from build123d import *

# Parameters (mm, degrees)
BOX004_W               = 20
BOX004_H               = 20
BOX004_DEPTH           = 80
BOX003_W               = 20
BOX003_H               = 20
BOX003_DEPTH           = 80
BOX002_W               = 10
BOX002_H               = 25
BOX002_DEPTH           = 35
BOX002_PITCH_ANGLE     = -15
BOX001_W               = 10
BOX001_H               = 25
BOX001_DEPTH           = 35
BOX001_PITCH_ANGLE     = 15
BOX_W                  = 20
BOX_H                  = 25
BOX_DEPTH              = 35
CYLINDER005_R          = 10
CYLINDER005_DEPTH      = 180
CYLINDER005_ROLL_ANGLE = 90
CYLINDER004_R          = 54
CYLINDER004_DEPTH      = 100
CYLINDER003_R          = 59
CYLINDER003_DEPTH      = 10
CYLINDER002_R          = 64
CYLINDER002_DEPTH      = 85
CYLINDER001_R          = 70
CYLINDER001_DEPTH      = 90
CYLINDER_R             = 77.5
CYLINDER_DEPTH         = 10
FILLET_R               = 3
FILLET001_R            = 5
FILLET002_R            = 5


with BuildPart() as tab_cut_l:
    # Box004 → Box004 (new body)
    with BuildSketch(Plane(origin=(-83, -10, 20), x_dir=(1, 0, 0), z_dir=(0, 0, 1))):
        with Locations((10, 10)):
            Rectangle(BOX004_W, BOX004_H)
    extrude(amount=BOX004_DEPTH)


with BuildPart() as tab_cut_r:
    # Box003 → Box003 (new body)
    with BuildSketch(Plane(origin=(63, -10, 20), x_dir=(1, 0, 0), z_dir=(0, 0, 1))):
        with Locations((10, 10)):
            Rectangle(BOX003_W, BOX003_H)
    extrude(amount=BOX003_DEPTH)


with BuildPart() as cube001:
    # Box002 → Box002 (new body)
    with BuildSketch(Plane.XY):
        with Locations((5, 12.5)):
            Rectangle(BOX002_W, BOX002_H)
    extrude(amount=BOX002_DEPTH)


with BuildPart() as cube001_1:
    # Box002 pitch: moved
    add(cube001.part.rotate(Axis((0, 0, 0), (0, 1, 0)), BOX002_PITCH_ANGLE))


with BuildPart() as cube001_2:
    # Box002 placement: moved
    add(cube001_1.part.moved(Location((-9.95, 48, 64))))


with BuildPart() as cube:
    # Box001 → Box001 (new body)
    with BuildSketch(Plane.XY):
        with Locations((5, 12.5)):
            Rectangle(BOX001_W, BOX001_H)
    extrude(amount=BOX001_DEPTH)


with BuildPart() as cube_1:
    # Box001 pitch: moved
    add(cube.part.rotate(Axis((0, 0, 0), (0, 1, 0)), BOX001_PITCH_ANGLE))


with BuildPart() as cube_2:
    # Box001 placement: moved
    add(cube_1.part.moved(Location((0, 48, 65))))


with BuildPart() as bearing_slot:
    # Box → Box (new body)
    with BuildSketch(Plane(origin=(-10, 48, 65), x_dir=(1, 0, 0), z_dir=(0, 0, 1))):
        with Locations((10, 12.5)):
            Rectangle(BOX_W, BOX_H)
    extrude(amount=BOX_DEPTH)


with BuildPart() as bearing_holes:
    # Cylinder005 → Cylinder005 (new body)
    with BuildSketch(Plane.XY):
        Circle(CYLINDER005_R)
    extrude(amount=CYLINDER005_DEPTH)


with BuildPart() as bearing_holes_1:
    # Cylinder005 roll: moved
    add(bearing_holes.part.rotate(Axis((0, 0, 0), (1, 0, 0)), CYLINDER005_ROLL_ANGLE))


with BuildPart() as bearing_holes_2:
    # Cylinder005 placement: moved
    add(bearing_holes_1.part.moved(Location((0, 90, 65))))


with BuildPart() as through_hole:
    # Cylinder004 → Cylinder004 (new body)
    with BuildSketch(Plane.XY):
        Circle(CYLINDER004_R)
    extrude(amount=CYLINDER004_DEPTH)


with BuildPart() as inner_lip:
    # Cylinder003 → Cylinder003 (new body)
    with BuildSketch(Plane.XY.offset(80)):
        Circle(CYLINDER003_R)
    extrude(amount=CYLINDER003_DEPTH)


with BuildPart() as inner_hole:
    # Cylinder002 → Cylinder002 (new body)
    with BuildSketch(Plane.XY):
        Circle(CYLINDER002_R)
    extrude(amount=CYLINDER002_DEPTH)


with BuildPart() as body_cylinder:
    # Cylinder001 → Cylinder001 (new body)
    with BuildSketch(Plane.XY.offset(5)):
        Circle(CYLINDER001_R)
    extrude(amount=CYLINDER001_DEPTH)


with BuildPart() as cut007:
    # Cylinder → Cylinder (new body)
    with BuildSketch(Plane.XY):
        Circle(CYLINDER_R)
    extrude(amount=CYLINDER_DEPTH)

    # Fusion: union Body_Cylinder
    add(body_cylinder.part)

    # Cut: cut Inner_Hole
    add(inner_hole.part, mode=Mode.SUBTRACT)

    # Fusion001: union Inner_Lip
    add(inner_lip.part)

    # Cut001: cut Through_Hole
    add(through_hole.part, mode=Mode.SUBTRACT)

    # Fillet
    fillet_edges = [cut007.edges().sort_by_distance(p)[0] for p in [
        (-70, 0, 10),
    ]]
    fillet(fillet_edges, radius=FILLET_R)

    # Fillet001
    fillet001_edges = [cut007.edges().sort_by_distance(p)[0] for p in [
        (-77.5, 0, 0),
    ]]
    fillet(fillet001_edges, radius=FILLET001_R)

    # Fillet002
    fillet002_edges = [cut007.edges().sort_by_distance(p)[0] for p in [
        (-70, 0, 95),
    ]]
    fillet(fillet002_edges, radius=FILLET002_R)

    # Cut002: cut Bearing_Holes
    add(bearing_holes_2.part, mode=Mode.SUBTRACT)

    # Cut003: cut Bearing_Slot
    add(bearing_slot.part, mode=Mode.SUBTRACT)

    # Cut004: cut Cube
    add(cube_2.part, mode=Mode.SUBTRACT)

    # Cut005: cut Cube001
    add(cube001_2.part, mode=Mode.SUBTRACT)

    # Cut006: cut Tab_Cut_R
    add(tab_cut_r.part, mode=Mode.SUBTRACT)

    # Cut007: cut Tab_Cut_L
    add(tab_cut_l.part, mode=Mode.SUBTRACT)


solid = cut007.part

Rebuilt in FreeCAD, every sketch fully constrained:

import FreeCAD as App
import Part
import Sketcher

V = App.Vector
Q = App.Units.Quantity


def edges_at(feature, points):
    """Names of the edges that pass closest to the given points."""
    edges = feature.Shape.Edges
    near = lambda p: min(range(len(edges)), key=lambda i: edges[i].distToShape(Part.Vertex(*p))[0])
    return sorted({f"Edge{near(p) + 1}" for p in points})


def add_polygon(sketch, points):
    """Adds a closed chain of lines whose ends are joined by coincident constraints."""
    first, n = sketch.GeometryCount, len(points)
    for a, b in zip(points, points[1:] + points[:1]):
        sketch.addGeometry(Part.LineSegment(App.Vector(*a, 0), App.Vector(*b, 0)), False)
    for i in range(n):
        sketch.addConstraint(Sketcher.Constraint("Coincident", first + i, 2, first + (i + 1) % n, 1))

doc = App.newDocument("Part")
body = doc.addObject("PartDesign::Body", "Body")

# Sketch on XY plane
sketch1 = doc.addObject("Sketcher::SketchObject", "Sketch")
body.addObject(sketch1)
sketch1.AttachmentSupport = (doc.XY_Plane, [""])
sketch1.MapMode = "FlatFace"
sketch1.AttachmentOffset = App.Placement(V(0, 0, 20), App.Rotation())
add_polygon(sketch1, [(-83, 10), (-83, -10), (-63, -10), (-63, 10)])  # lines 0-3
sketch1.addConstraint([
    Sketcher.Constraint("Vertical", 0),
    Sketcher.Constraint("Horizontal", 1),
    Sketcher.Constraint("Vertical", 2),
    Sketcher.Constraint("Horizontal", 3),
    Sketcher.Constraint("Equal", 3, 0),
    Sketcher.Constraint("DistanceX", 1, 1, 1, 2, Q("20 mm")),
    Sketcher.Constraint("DistanceX", 0, 2, -1, 1, Q("83 mm")),
    Sketcher.Constraint("DistanceY", 0, 2, -1, 1, Q("10 mm")),
])
pad1 = doc.addObject("PartDesign::Pad", "Pad")
body.addObject(pad1)
pad1.Profile = sketch1
pad1.Length = 80
body2 = doc.addObject("PartDesign::Body", "Body001")

# Sketch on XY plane
sketch2 = doc.addObject("Sketcher::SketchObject", "Sketch001")
body2.addObject(sketch2)
sketch2.AttachmentSupport = (doc.getObject("XY_Plane001"), [""])
sketch2.MapMode = "FlatFace"
sketch2.AttachmentOffset = App.Placement(V(0, 0, 20), App.Rotation())
add_polygon(sketch2, [(63, 10), (63, -10), (83, -10), (83, 10)])  # lines 0-3
sketch2.addConstraint([
    Sketcher.Constraint("Vertical", 0),
    Sketcher.Constraint("Horizontal", 1),
    Sketcher.Constraint("Vertical", 2),
    Sketcher.Constraint("Horizontal", 3),
    Sketcher.Constraint("Equal", 3, 0),
    Sketcher.Constraint("DistanceX", 1, 1, 1, 2, Q("20 mm")),
    Sketcher.Constraint("DistanceX", -1, 1, 0, 2, Q("63 mm")),
    Sketcher.Constraint("DistanceY", 0, 2, -1, 1, Q("10 mm")),
])
pad2 = doc.addObject("PartDesign::Pad", "Pad001")
body2.addObject(pad2)
pad2.Profile = sketch2
pad2.Length = 80
body3 = doc.addObject("PartDesign::Body", "Body002")

# Sketch on XY plane
sketch3 = doc.addObject("Sketcher::SketchObject", "Sketch002")
body3.addObject(sketch3)
sketch3.AttachmentSupport = (doc.getObject("XY_Plane002"), [""])
sketch3.MapMode = "FlatFace"
add_polygon(sketch3, [(0, 25), (0, 0), (10, 0), (10, 25)])  # lines 0-3
sketch3.addConstraint([
    Sketcher.Constraint("Vertical", 0),
    Sketcher.Constraint("Horizontal", 1),
    Sketcher.Constraint("Vertical", 2),
    Sketcher.Constraint("Horizontal", 3),
    Sketcher.Constraint("Coincident", 0, 2, -1, 1),
    Sketcher.Constraint("DistanceX", 1, 1, 1, 2, Q("10 mm")),
    Sketcher.Constraint("DistanceY", 0, 2, 0, 1, Q("25 mm")),
])
pad3 = doc.addObject("PartDesign::Pad", "Pad002")
body3.addObject(pad3)
pad3.Profile = sketch3
pad3.Length = 35
body4 = doc.addObject("PartDesign::Body", "Body003")
doc.recompute()

body3.Placement = App.Placement(V(0, 0, 0), App.Rotation(V(0, 1, 0), 345))
boolean = doc.addObject("PartDesign::Boolean", "Boolean")
body4.addObject(boolean)
boolean.Type = "Fuse"
boolean.addObjects([body3])
body5 = doc.addObject("PartDesign::Body", "Body004")
doc.recompute()

body4.Placement = App.Placement(V(-9.95, 48, 64), App.Rotation(V(0, 0, 1), 0))
boolean2 = doc.addObject("PartDesign::Boolean", "Boolean001")
body5.addObject(boolean2)
boolean2.Type = "Fuse"
boolean2.addObjects([body4])
body6 = doc.addObject("PartDesign::Body", "Body005")

# Sketch on XY plane
sketch4 = doc.addObject("Sketcher::SketchObject", "Sketch003")
body6.addObject(sketch4)
sketch4.AttachmentSupport = (doc.getObject("XY_Plane005"), [""])
sketch4.MapMode = "FlatFace"
add_polygon(sketch4, [(0, 25), (0, 0), (10, 0), (10, 25)])  # lines 0-3
sketch4.addConstraint([
    Sketcher.Constraint("Vertical", 0),
    Sketcher.Constraint("Horizontal", 1),
    Sketcher.Constraint("Vertical", 2),
    Sketcher.Constraint("Horizontal", 3),
    Sketcher.Constraint("Coincident", 0, 2, -1, 1),
    Sketcher.Constraint("DistanceX", 1, 1, 1, 2, Q("10 mm")),
    Sketcher.Constraint("DistanceY", 0, 2, 0, 1, Q("25 mm")),
])
pad4 = doc.addObject("PartDesign::Pad", "Pad003")
body6.addObject(pad4)
pad4.Profile = sketch4
pad4.Length = 35
body7 = doc.addObject("PartDesign::Body", "Body006")
doc.recompute()

body6.Placement = App.Placement(V(0, 0, 0), App.Rotation(V(0, 1, 0), 15))
boolean3 = doc.addObject("PartDesign::Boolean", "Boolean002")
body7.addObject(boolean3)
boolean3.Type = "Fuse"
boolean3.addObjects([body6])
body8 = doc.addObject("PartDesign::Body", "Body007")
doc.recompute()

body7.Placement = App.Placement(V(0, 48, 65), App.Rotation(V(0, 0, 1), 0))
boolean4 = doc.addObject("PartDesign::Boolean", "Boolean003")
body8.addObject(boolean4)
boolean4.Type = "Fuse"
boolean4.addObjects([body7])
body9 = doc.addObject("PartDesign::Body", "Body008")

# Sketch on XY plane
sketch5 = doc.addObject("Sketcher::SketchObject", "Sketch004")
body9.addObject(sketch5)
sketch5.AttachmentSupport = (doc.getObject("XY_Plane008"), [""])
sketch5.MapMode = "FlatFace"
sketch5.AttachmentOffset = App.Placement(V(0, 0, 65), App.Rotation())
add_polygon(sketch5, [(-10, 73), (-10, 48), (10, 48), (10, 73)])  # lines 0-3
sketch5.addConstraint([
    Sketcher.Constraint("Vertical", 0),
    Sketcher.Constraint("Horizontal", 1),
    Sketcher.Constraint("Vertical", 2),
    Sketcher.Constraint("Horizontal", 3),
    Sketcher.Constraint("DistanceX", 1, 1, 1, 2, Q("20 mm")),
    Sketcher.Constraint("DistanceY", 0, 2, 0, 1, Q("25 mm")),
    Sketcher.Constraint("DistanceX", 0, 2, -1, 1, Q("10 mm")),
    Sketcher.Constraint("DistanceY", -1, 1, 0, 2, Q("48 mm")),
])
pad5 = doc.addObject("PartDesign::Pad", "Pad004")
body9.addObject(pad5)
pad5.Profile = sketch5
pad5.Length = 35
body10 = doc.addObject("PartDesign::Body", "Body009")

# Sketch on XY plane
sketch6 = doc.addObject("Sketcher::SketchObject", "Sketch005")
body10.addObject(sketch6)
sketch6.AttachmentSupport = (doc.getObject("XY_Plane009"), [""])
sketch6.MapMode = "FlatFace"
sketch6.addGeometry(Part.Circle(V(0, 0, 0), V(0, 0, 1), 10), False)
sketch6.addConstraint([
    Sketcher.Constraint("Coincident", 0, 3, -1, 1),
    Sketcher.Constraint("Diameter", 0, Q("20 mm")),
])
pad6 = doc.addObject("PartDesign::Pad", "Pad005")
body10.addObject(pad6)
pad6.Profile = sketch6
pad6.Length = 180
body11 = doc.addObject("PartDesign::Body", "Body010")
doc.recompute()

body10.Placement = App.Placement(V(0, 0, 0), App.Rotation(V(1, 0, 0), 90))
boolean5 = doc.addObject("PartDesign::Boolean", "Boolean004")
body11.addObject(boolean5)
boolean5.Type = "Fuse"
boolean5.addObjects([body10])
body12 = doc.addObject("PartDesign::Body", "Body011")
doc.recompute()

body11.Placement = App.Placement(V(0, 90, 65), App.Rotation(V(0, 0, 1), 0))
boolean6 = doc.addObject("PartDesign::Boolean", "Boolean005")
body12.addObject(boolean6)
boolean6.Type = "Fuse"
boolean6.addObjects([body11])
body13 = doc.addObject("PartDesign::Body", "Body012")

# Sketch on XY plane
sketch7 = doc.addObject("Sketcher::SketchObject", "Sketch006")
body13.addObject(sketch7)
sketch7.AttachmentSupport = (doc.getObject("XY_Plane012"), [""])
sketch7.MapMode = "FlatFace"
sketch7.addGeometry(Part.Circle(V(0, 0, 0), V(0, 0, 1), 54), False)
sketch7.addConstraint([
    Sketcher.Constraint("Coincident", 0, 3, -1, 1),
    Sketcher.Constraint("Diameter", 0, Q("108 mm")),
])
pad7 = doc.addObject("PartDesign::Pad", "Pad006")
body13.addObject(pad7)
pad7.Profile = sketch7
pad7.Length = 100
body14 = doc.addObject("PartDesign::Body", "Body013")

# Sketch on XY plane
sketch8 = doc.addObject("Sketcher::SketchObject", "Sketch007")
body14.addObject(sketch8)
sketch8.AttachmentSupport = (doc.getObject("XY_Plane013"), [""])
sketch8.MapMode = "FlatFace"
sketch8.AttachmentOffset = App.Placement(V(0, 0, 80), App.Rotation())
sketch8.addGeometry(Part.Circle(V(0, 0, 0), V(0, 0, 1), 59), False)
sketch8.addConstraint([
    Sketcher.Constraint("Coincident", 0, 3, -1, 1),
    Sketcher.Constraint("Diameter", 0, Q("118 mm")),
])
pad8 = doc.addObject("PartDesign::Pad", "Pad007")
body14.addObject(pad8)
pad8.Profile = sketch8
pad8.Length = 10
body15 = doc.addObject("PartDesign::Body", "Body014")

# Sketch on XY plane
sketch9 = doc.addObject("Sketcher::SketchObject", "Sketch008")
body15.addObject(sketch9)
sketch9.AttachmentSupport = (doc.getObject("XY_Plane014"), [""])
sketch9.MapMode = "FlatFace"
sketch9.addGeometry(Part.Circle(V(0, 0, 0), V(0, 0, 1), 64), False)
sketch9.addConstraint([
    Sketcher.Constraint("Coincident", 0, 3, -1, 1),
    Sketcher.Constraint("Diameter", 0, Q("128 mm")),
])
pad9 = doc.addObject("PartDesign::Pad", "Pad008")
body15.addObject(pad9)
pad9.Profile = sketch9
pad9.Length = 85
body16 = doc.addObject("PartDesign::Body", "Body015")

# Sketch on XY plane
sketch10 = doc.addObject("Sketcher::SketchObject", "Sketch009")
body16.addObject(sketch10)
sketch10.AttachmentSupport = (doc.getObject("XY_Plane015"), [""])
sketch10.MapMode = "FlatFace"
sketch10.AttachmentOffset = App.Placement(V(0, 0, 5), App.Rotation())
sketch10.addGeometry(Part.Circle(V(0, 0, 0), V(0, 0, 1), 70), False)
sketch10.addConstraint([
    Sketcher.Constraint("Coincident", 0, 3, -1, 1),
    Sketcher.Constraint("Diameter", 0, Q("140 mm")),
])
pad10 = doc.addObject("PartDesign::Pad", "Pad009")
body16.addObject(pad10)
pad10.Profile = sketch10
pad10.Length = 90
body17 = doc.addObject("PartDesign::Body", "Body016")

# Sketch on XY plane
sketch11 = doc.addObject("Sketcher::SketchObject", "Sketch010")
body17.addObject(sketch11)
sketch11.AttachmentSupport = (doc.getObject("XY_Plane016"), [""])
sketch11.MapMode = "FlatFace"
sketch11.addGeometry(Part.Circle(V(0, 0, 0), V(0, 0, 1), 78), False)
sketch11.addConstraint([
    Sketcher.Constraint("Coincident", 0, 3, -1, 1),
    Sketcher.Constraint("Diameter", 0, Q("155 mm")),
])
pad11 = doc.addObject("PartDesign::Pad", "Pad010")
body17.addObject(pad11)
pad11.Profile = sketch11
pad11.Length = 10
doc.recompute()

boolean7 = doc.addObject("PartDesign::Boolean", "Boolean006")
body17.addObject(boolean7)
boolean7.Type = "Fuse"
boolean7.addObjects([body16])
doc.recompute()

boolean8 = doc.addObject("PartDesign::Boolean", "Boolean007")
body17.addObject(boolean8)
boolean8.Type = "Cut"
boolean8.addObjects([body15])
doc.recompute()

boolean9 = doc.addObject("PartDesign::Boolean", "Boolean008")
body17.addObject(boolean9)
boolean9.Type = "Fuse"
boolean9.addObjects([body14])
doc.recompute()

boolean10 = doc.addObject("PartDesign::Boolean", "Boolean009")
body17.addObject(boolean10)
boolean10.Type = "Cut"
boolean10.addObjects([body13])
doc.recompute()

fillet = doc.addObject("PartDesign::Fillet", "Fillet")
body17.addObject(fillet)
fillet.Base = (boolean10, edges_at(boolean10, [(-70, 0, 10)]))
fillet.Radius = 3
doc.recompute()

fillet2 = doc.addObject("PartDesign::Fillet", "Fillet001")
body17.addObject(fillet2)
fillet2.Base = (fillet, edges_at(fillet, [(-77.5, 0, 0)]))
fillet2.Radius = 5
doc.recompute()

fillet3 = doc.addObject("PartDesign::Fillet", "Fillet002")
body17.addObject(fillet3)
fillet3.Base = (fillet2, edges_at(fillet2, [(-70, 0, 95)]))
fillet3.Radius = 5
doc.recompute()

boolean11 = doc.addObject("PartDesign::Boolean", "Boolean010")
body17.addObject(boolean11)
boolean11.Type = "Cut"
boolean11.addObjects([body12])
doc.recompute()

boolean12 = doc.addObject("PartDesign::Boolean", "Boolean011")
body17.addObject(boolean12)
boolean12.Type = "Cut"
boolean12.addObjects([body9])
doc.recompute()

boolean13 = doc.addObject("PartDesign::Boolean", "Boolean012")
body17.addObject(boolean13)
boolean13.Type = "Cut"
boolean13.addObjects([body8])
doc.recompute()

boolean14 = doc.addObject("PartDesign::Boolean", "Boolean013")
body17.addObject(boolean14)
boolean14.Type = "Cut"
boolean14.addObjects([body5])
doc.recompute()

boolean15 = doc.addObject("PartDesign::Boolean", "Boolean014")
body17.addObject(boolean15)
boolean15.Type = "Cut"
boolean15.addObjects([body2])
doc.recompute()

boolean16 = doc.addObject("PartDesign::Boolean", "Boolean015")
body17.addObject(boolean16)
boolean16.Type = "Cut"
boolean16.addObjects([body])

doc.recompute()
